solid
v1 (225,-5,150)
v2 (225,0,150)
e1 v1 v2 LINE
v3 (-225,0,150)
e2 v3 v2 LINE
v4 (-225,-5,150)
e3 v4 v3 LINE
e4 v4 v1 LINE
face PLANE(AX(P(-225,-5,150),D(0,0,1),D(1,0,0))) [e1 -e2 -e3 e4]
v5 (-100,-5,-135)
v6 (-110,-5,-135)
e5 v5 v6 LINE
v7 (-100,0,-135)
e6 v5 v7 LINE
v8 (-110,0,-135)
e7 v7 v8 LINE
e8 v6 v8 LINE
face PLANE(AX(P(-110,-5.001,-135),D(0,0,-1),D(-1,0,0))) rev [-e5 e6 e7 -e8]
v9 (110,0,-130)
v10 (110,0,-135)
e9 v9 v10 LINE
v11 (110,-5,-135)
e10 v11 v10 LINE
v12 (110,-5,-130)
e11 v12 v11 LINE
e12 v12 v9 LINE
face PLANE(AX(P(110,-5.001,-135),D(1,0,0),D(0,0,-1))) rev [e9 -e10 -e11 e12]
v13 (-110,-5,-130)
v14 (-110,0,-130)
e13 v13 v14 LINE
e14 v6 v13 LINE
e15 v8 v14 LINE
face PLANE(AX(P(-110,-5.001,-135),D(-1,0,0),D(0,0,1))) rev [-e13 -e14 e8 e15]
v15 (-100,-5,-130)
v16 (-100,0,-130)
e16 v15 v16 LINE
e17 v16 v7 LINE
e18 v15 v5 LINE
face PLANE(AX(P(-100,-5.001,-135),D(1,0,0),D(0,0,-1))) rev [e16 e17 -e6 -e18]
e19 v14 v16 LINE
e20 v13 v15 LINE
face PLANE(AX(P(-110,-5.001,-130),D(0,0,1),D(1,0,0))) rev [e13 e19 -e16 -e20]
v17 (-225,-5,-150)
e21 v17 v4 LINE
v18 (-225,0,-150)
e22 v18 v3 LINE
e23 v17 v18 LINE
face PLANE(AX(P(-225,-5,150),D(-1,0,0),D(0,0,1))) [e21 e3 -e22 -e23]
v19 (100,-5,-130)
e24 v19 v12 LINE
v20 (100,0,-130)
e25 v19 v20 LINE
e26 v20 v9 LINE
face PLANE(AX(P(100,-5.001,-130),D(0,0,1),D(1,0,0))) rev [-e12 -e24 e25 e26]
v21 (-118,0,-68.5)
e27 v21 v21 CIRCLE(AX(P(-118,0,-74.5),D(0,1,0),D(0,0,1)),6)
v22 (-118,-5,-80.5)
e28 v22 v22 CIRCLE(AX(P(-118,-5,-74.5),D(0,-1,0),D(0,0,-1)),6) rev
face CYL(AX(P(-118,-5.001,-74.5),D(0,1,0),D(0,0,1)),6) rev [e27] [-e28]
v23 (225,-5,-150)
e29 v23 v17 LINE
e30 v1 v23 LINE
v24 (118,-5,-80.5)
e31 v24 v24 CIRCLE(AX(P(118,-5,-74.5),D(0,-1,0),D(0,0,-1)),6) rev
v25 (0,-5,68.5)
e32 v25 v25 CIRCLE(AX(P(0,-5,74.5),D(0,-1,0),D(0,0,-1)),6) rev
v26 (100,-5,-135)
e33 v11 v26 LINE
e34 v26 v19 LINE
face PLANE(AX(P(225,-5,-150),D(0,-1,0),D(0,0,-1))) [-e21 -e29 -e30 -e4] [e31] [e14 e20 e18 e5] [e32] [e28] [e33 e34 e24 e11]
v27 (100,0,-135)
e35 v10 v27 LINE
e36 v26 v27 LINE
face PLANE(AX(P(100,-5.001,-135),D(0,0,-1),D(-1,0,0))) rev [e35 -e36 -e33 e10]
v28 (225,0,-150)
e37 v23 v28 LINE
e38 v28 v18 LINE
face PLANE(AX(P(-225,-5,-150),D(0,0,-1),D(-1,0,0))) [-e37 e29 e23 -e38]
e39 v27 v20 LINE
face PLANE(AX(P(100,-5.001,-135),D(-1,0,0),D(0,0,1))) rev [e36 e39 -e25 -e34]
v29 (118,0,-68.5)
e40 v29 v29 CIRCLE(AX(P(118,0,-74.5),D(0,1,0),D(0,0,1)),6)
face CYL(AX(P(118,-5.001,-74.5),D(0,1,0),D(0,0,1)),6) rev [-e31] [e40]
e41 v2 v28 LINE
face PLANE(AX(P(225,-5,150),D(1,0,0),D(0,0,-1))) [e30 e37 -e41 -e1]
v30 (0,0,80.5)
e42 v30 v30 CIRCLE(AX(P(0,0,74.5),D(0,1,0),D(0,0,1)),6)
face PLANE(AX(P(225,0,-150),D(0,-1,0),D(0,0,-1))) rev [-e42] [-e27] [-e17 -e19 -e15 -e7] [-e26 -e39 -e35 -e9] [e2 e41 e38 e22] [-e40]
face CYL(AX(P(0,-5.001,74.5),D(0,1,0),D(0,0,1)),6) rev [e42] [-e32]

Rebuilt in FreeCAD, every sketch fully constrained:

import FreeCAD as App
import Part
import Sketcher
from FreeCAD import Vector
Q = App.Units.Quantity

doc = App.newDocument("Part")
params = doc.addObject("Spreadsheet::Sheet", "Params")
for row, (alias, value) in enumerate([
    ("sketch1_width", "450 mm"),
    ("sketch1_height", "300 mm"),
    ("pad1_length", "5 mm"),
    ("sketch2_diameter", "12 mm"),
    ("sketch3_diameter", "12 mm"),
    ("sketch4_diameter", "12 mm"),
    ("sketch5_width", "10 mm"),
    ("sketch5_height", "5 mm"),
    ("sketch6_width", "10 mm"),
    ("sketch6_height", "5 mm"),
], start=1):
    params.set(f"A{row}", alias)
    params.set(f"B{row}", "=" + value)
    params.setAlias(f"B{row}", alias)

body = doc.addObject("PartDesign::Body", "Body")

# Sketch on XZ plane
sketch1 = body.newObject("Sketcher::SketchObject", "Sketch")
sketch1.AttachmentSupport = (doc.getObject("XZ_Plane"), [""])
sketch1.MapMode = "FlatFace"
sketch1.addGeometry([
    Part.LineSegment(Vector(-225, -150, 0), Vector(-225, 150, 0)),
    Part.LineSegment(Vector(-225, 150, 0), Vector(225, 150, 0)),
    Part.LineSegment(Vector(225, 150, 0), Vector(225, -150, 0)),
    Part.LineSegment(Vector(225, -150, 0), Vector(-225, -150, 0)),
], False)
sketch1.addConstraint([
    Sketcher.Constraint("Coincident", 0, 2, 1, 1),
    Sketcher.Constraint("Coincident", 1, 2, 2, 1),
    Sketcher.Constraint("Coincident", 2, 2, 3, 1),
    Sketcher.Constraint("Coincident", 3, 2, 0, 1),
    Sketcher.Constraint("Vertical", 0),
    Sketcher.Constraint("Horizontal", 1),
    Sketcher.Constraint("Vertical", 2),
    Sketcher.Constraint("Horizontal", 3),
    Sketcher.Constraint("Symmetric", 0, 2, 2, 2, -1, 1),
    Sketcher.Constraint("DistanceX", 1, 1, 1, 2, Q("450 mm")),
    Sketcher.Constraint("DistanceY", 0, 1, 0, 2, Q("300 mm")),
])
sketch1.setExpression("Constraints[9]", "Params.sketch1_width")
sketch1.setExpression("Constraints[10]", "Params.sketch1_height")
pad1 = body.newObject("PartDesign::Pad", "Pad")
pad1.Profile = sketch1
pad1.setExpression("Length", "Params.pad1_length")

# Sketch on XZ plane
sketch2 = body.newObject("Sketcher::SketchObject", "Sketch001")
sketch2.AttachmentSupport = (doc.getObject("XZ_Plane"), [""])
sketch2.MapMode = "FlatFace"
sketch2.addGeometry(Part.Circle(Vector(0, 74.5, 0), Vector(0, 0, 1), 6), False)
sketch2.addConstraint([
    Sketcher.Constraint("PointOnObject", 0, 3, -2),
    Sketcher.Constraint("Diameter", 0, Q("12 mm")),
    Sketcher.Constraint("DistanceY", -1, 1, 0, 3, Q("74.5 mm")),
])
sketch2.setExpression("Constraints[1]", "Params.sketch2_diameter")
pocket1 = body.newObject("PartDesign::Pocket", "Pocket")
pocket1.Profile = sketch2
pocket1.Type = "UpToFirst"
pocket1.Reversed = True

# Sketch on XZ plane
sketch3 = body.newObject("Sketcher::SketchObject", "Sketch002")
sketch3.AttachmentSupport = (doc.getObject("XZ_Plane"), [""])
sketch3.MapMode = "FlatFace"
sketch3.addGeometry(Part.Circle(Vector(118, -74.5, 0), Vector(0, 0, 1), 6), False)
sketch3.addConstraint([
    Sketcher.Constraint("Diameter", 0, Q("12 mm")),
    Sketcher.Constraint("DistanceX", -1, 1, 0, 3, Q("118 mm")),
    Sketcher.Constraint("DistanceY", 0, 3, -1, 1, Q("74.5 mm")),
])
sketch3.setExpression("Constraints[0]", "Params.sketch3_diameter")
pocket2 = body.newObject("PartDesign::Pocket", "Pocket001")
pocket2.Profile = sketch3
pocket2.Type = "UpToFirst"
pocket2.Reversed = True

# Sketch on XZ plane
sketch4 = body.newObject("Sketcher::SketchObject", "Sketch003")
sketch4.AttachmentSupport = (doc.getObject("XZ_Plane"), [""])
sketch4.MapMode = "FlatFace"
sketch4.addGeometry(Part.Circle(Vector(-118, -74.5, 0), Vector(0, 0, 1), 6), False)
sketch4.addConstraint([
    Sketcher.Constraint("Diameter", 0, Q("12 mm")),
    Sketcher.Constraint("DistanceX", 0, 3, -1, 1, Q("118 mm")),
    Sketcher.Constraint("DistanceY", 0, 3, -1, 1, Q("74.5 mm")),
])
sketch4.setExpression("Constraints[0]", "Params.sketch4_diameter")
pocket3 = body.newObject("PartDesign::Pocket", "Pocket002")
pocket3.Profile = sketch4
pocket3.Type = "UpToFirst"
pocket3.Reversed = True

# Sketch on XZ plane
sketch5 = body.newObject("Sketcher::SketchObject", "Sketch004")
sketch5.AttachmentSupport = (doc.getObject("XZ_Plane"), [""])
sketch5.MapMode = "FlatFace"
sketch5.addGeometry([
    Part.LineSegment(Vector(-110, -135, 0), Vector(-110, -130, 0)),
    Part.LineSegment(Vector(-110, -130, 0), Vector(-100, -130, 0)),
    Part.LineSegment(Vector(-100, -130, 0), Vector(-100, -135, 0)),
    Part.LineSegment(Vector(-100, -135, 0), Vector(-110, -135, 0)),
], False)
sketch5.addConstraint([
    Sketcher.Constraint("Coincident", 0, 2, 1, 1),
    Sketcher.Constraint("Coincident", 1, 2, 2, 1),
    Sketcher.Constraint("Coincident", 2, 2, 3, 1),
    Sketcher.Constraint("Coincident", 3, 2, 0, 1),
    Sketcher.Constraint("Vertical", 0),
    Sketcher.Constraint("Horizontal", 1),
    Sketcher.Constraint("Vertical", 2),
    Sketcher.Constraint("Horizontal", 3),
    Sketcher.Constraint("DistanceX", 1, 1, 1, 2, Q("10 mm")),
    Sketcher.Constraint("DistanceY", 0, 1, 0, 2, Q("5 mm")),
    Sketcher.Constraint("DistanceX", 0, 2, -1, 1, Q("110 mm")),
    Sketcher.Constraint("DistanceY", 0, 2, -1, 1, Q("130 mm")),
])
sketch5.setExpression("Constraints[8]", "Params.sketch5_width")
sketch5.setExpression("Constraints[9]", "Params.sketch5_height")
pocket4 = body.newObject("PartDesign::Pocket", "Pocket003")
pocket4.Profile = sketch5
pocket4.Type = "UpToFirst"
pocket4.Reversed = True

# Sketch on XZ plane
sketch6 = body.newObject("Sketcher::SketchObject", "Sketch005")
sketch6.AttachmentSupport = (doc.getObject("XZ_Plane"), [""])
sketch6.MapMode = "FlatFace"
sketch6.addGeometry([
    Part.LineSegment(Vector(100, -135, 0), Vector(100, -130, 0)),
    Part.LineSegment(Vector(100, -130, 0), Vector(110, -130, 0)),
    Part.LineSegment(Vector(110, -130, 0), Vector(110, -135, 0)),
    Part.LineSegment(Vector(110, -135, 0), Vector(100, -135, 0)),
], False)
sketch6.addConstraint([
    Sketcher.Constraint("Coincident", 0, 2, 1, 1),
    Sketcher.Constraint("Coincident", 1, 2, 2, 1),
    Sketcher.Constraint("Coincident", 2, 2, 3, 1),
    Sketcher.Constraint("Coincident", 3, 2, 0, 1),
    Sketcher.Constraint("Vertical", 0),
    Sketcher.Constraint("Horizontal", 1),
    Sketcher.Constraint("Vertical", 2),
    Sketcher.Constraint("Horizontal", 3),
    Sketcher.Constraint("DistanceX", 1, 1, 1, 2, Q("10 mm")),
    Sketcher.Constraint("DistanceY", 0, 1, 0, 2, Q("5 mm")),
    Sketcher.Constraint("DistanceX", -1, 1, 0, 2, Q("100 mm")),
    Sketcher.Constraint("DistanceY", 0, 2, -1, 1, Q("130 mm")),
])
sketch6.setExpression("Constraints[8]", "Params.sketch6_width")
sketch6.setExpression("Constraints[9]", "Params.sketch6_height")
pocket5 = body.newObject("PartDesign::Pocket", "Pocket004")
pocket5.Profile = sketch6
pocket5.Type = "UpToFirst"
pocket5.Reversed = True

doc.recompute()
